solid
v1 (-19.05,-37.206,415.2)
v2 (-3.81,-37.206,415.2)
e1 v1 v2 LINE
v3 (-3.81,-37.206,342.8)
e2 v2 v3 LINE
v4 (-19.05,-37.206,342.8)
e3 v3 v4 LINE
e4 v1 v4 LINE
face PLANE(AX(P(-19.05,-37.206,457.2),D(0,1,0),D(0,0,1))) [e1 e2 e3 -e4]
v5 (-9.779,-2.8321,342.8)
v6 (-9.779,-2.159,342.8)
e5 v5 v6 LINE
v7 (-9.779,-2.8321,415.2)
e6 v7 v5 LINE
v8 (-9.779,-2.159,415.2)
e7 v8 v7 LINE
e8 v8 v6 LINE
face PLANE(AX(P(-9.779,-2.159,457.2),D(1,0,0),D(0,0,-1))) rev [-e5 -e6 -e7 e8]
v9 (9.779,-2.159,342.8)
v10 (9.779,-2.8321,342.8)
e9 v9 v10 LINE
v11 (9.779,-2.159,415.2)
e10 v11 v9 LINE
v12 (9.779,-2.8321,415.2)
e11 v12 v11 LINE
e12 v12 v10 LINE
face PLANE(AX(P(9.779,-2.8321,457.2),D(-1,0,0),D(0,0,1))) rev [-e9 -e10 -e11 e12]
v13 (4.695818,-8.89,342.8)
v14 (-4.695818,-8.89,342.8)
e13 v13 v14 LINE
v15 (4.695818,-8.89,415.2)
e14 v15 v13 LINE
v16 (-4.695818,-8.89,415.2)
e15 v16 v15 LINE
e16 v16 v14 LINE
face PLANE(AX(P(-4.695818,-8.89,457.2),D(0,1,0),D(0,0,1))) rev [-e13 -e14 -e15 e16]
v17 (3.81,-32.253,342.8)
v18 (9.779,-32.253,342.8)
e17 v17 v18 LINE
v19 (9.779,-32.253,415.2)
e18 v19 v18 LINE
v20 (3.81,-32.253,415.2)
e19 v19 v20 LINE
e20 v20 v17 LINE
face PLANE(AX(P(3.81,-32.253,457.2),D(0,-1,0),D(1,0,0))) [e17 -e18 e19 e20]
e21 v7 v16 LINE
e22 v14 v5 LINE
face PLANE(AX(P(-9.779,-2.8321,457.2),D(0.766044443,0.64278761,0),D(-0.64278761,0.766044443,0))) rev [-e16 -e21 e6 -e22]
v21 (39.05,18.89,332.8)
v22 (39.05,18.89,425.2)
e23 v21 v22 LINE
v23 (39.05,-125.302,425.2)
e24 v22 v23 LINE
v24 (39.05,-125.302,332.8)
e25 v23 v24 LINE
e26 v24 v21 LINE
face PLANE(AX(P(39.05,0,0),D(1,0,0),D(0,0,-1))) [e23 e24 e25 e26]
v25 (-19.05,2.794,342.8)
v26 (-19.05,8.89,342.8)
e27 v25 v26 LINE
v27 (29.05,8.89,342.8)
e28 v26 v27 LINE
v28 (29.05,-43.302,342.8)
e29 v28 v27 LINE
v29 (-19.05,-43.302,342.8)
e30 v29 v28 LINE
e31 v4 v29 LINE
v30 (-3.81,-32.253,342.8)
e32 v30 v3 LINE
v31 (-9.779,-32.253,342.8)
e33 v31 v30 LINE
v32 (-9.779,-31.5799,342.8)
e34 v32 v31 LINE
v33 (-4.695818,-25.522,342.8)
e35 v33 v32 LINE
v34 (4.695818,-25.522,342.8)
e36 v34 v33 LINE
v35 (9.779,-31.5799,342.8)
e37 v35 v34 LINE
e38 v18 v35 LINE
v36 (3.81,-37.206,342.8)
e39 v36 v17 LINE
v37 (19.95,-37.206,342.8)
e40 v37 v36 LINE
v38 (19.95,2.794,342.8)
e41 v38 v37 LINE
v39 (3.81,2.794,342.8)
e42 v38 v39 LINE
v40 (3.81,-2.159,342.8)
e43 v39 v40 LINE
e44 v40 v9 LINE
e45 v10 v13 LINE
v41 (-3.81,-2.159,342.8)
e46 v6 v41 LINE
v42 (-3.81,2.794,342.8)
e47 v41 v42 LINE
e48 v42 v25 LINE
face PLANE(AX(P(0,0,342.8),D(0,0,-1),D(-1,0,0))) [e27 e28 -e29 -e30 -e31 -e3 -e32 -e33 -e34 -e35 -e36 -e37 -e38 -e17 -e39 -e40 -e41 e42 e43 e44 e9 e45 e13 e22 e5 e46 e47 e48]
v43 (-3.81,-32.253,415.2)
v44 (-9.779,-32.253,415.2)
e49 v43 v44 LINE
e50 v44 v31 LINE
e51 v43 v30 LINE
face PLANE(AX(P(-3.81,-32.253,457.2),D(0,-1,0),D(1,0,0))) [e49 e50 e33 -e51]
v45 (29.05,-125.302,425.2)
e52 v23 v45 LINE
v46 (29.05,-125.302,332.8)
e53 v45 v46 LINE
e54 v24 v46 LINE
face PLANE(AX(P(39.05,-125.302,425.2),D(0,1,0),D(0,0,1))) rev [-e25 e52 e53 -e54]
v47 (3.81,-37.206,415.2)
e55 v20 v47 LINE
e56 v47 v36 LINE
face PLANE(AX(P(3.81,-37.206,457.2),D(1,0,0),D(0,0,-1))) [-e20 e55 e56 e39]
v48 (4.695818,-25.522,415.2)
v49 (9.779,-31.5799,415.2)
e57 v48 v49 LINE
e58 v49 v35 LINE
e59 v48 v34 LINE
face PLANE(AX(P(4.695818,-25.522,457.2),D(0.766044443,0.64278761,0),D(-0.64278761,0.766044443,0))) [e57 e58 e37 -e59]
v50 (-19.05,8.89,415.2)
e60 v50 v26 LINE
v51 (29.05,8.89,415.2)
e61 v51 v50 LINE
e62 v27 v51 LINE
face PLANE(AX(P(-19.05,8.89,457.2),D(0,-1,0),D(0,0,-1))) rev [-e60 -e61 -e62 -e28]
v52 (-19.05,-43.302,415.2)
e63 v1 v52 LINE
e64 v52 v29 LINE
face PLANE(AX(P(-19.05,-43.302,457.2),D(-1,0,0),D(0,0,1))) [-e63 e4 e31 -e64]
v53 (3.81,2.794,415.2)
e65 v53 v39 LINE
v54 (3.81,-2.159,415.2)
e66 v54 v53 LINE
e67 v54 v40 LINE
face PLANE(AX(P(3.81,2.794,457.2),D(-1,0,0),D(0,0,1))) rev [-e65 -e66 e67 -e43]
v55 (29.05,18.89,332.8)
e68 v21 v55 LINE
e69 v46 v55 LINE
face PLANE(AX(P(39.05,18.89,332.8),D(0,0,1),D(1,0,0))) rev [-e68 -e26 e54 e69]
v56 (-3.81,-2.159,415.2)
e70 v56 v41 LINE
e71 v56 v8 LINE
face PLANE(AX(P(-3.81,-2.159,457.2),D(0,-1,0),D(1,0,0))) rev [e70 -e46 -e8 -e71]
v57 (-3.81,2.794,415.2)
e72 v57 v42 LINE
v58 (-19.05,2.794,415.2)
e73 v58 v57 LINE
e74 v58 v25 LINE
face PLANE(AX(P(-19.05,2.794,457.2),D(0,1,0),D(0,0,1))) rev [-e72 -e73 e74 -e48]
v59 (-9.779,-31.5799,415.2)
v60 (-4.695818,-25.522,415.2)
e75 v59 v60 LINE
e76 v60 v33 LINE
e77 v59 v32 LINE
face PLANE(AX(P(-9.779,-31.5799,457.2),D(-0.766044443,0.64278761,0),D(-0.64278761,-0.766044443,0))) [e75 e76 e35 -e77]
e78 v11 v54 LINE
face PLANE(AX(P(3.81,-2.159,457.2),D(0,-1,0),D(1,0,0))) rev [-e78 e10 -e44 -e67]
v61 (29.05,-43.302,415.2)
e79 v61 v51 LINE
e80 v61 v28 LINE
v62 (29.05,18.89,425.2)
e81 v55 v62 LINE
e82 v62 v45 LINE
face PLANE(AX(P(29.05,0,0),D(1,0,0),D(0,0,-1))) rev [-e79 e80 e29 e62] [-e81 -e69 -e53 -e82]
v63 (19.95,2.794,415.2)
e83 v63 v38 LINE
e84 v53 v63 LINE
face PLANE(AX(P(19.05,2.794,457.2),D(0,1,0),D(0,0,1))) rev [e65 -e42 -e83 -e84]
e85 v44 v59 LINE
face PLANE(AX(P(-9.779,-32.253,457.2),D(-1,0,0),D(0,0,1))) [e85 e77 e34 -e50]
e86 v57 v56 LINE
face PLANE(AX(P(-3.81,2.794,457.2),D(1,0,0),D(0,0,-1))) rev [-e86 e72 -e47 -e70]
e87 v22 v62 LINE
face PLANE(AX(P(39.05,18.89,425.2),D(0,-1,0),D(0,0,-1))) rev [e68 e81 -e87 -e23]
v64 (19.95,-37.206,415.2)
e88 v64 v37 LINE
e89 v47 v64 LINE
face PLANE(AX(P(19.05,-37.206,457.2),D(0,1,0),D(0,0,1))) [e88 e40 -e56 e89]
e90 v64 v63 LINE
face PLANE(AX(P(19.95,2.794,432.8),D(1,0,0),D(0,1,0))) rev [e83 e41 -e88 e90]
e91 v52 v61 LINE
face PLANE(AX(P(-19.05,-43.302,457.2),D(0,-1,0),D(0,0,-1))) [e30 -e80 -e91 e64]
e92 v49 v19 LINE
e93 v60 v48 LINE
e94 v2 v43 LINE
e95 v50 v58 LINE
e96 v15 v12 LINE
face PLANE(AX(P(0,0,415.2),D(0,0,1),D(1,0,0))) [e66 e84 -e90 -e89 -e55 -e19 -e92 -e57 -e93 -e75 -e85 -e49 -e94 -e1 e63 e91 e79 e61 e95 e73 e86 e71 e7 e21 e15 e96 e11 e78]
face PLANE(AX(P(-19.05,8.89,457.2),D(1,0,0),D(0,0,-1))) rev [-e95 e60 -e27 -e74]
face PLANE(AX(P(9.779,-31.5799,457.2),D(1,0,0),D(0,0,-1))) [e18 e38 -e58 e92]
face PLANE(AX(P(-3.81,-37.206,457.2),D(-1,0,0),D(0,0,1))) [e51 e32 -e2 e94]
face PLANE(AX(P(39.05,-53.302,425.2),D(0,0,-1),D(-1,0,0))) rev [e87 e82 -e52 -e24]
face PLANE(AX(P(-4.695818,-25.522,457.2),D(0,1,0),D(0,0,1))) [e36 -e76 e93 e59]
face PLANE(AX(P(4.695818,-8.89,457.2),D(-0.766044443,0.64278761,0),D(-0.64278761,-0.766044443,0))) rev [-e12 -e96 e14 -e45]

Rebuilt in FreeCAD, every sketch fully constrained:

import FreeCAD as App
import Part
import Sketcher
from FreeCAD import Vector
Q = App.Units.Quantity

doc = App.newDocument("Part")
body = doc.addObject("PartDesign::Body", "Body")

# Sketch on XY plane
sketch1 = body.newObject("Sketcher::SketchObject", "Sketch")
sketch1.AttachmentSupport = (doc.getObject("XY_Plane"), [""])
sketch1.MapMode = "FlatFace"
sketch1.addGeometry([
    Part.LineSegment(Vector(19.1, 8.9, 0), Vector(-19.1, 8.9, 0)),  # 0
    Part.LineSegment(Vector(-19.1, 8.9, 0), Vector(-19.1, 2.8, 0)),  # 1
    Part.LineSegment(Vector(-19.1, 2.8, 0), Vector(-3.8, 2.8, 0)),  # 2
    Part.LineSegment(Vector(-3.8, 2.8, 0), Vector(-3.8, -2.2, 0)),  # 3
    Part.LineSegment(Vector(-3.8, -2.2, 0), Vector(-9.8, -2.2, 0)),  # 4
    Part.LineSegment(Vector(-9.8, -2.2, 0), Vector(-9.8, -2.8, 0)),  # 5
    Part.LineSegment(Vector(-9.8, -2.8, 0), Vector(-4.7, -8.9, 0)),  # 6
    Part.LineSegment(Vector(-4.7, -8.9, 0), Vector(4.7, -8.9, 0)),  # 7
    Part.LineSegment(Vector(4.7, -8.9, 0), Vector(9.8, -2.8, 0)),  # 8
    Part.LineSegment(Vector(9.8, -2.8, 0), Vector(9.8, -2.2, 0)),  # 9
    Part.LineSegment(Vector(9.8, -2.2, 0), Vector(3.8, -2.2, 0)),  # 10
    Part.LineSegment(Vector(3.8, -2.2, 0), Vector(3.8, 2.8, 0)),  # 11
    Part.LineSegment(Vector(3.8, 2.8, 0), Vector(19.1, 2.8, 0)),  # 12
    Part.LineSegment(Vector(19.1, 2.8, 0), Vector(19.1, 8.9, 0)),  # 13
], False)
sketch1.addConstraint([
    Sketcher.Constraint("Coincident", 0, 2, 1, 1),
    Sketcher.Constraint("Coincident", 1, 2, 2, 1),
    Sketcher.Constraint("Coincident", 2, 2, 3, 1),
    Sketcher.Constraint("Coincident", 3, 2, 4, 1),
    Sketcher.Constraint("Coincident", 4, 2, 5, 1),
    Sketcher.Constraint("Coincident", 5, 2, 6, 1),
    Sketcher.Constraint("Coincident", 6, 2, 7, 1),
    Sketcher.Constraint("Coincident", 7, 2, 8, 1),
    Sketcher.Constraint("Coincident", 8, 2, 9, 1),
    Sketcher.Constraint("Coincident", 9, 2, 10, 1),
    Sketcher.Constraint("Coincident", 10, 2, 11, 1),
    Sketcher.Constraint("Coincident", 11, 2, 12, 1),
    Sketcher.Constraint("Coincident", 12, 2, 13, 1),
    Sketcher.Constraint("Coincident", 13, 2, 0, 1),
    Sketcher.Constraint("Horizontal", 0),
    Sketcher.Constraint("Vertical", 1),
    Sketcher.Constraint("Horizontal", 2),
    Sketcher.Constraint("Vertical", 3),
    Sketcher.Constraint("Horizontal", 4),
    Sketcher.Constraint("Vertical", 5),
    Sketcher.Constraint("Horizontal", 7),
    Sketcher.Constraint("Vertical", 9),
    Sketcher.Constraint("Horizontal", 10),
    Sketcher.Constraint("Vertical", 11),
    Sketcher.Constraint("Horizontal", 12),
    Sketcher.Constraint("Vertical", 13),
    Sketcher.Constraint("Symmetric", 5, 2, 8, 2, -2),
    Sketcher.Constraint("Symmetric", 3, 2, 10, 2, -2),
    Sketcher.Constraint("Symmetric", 1, 2, 12, 2, -2),
    Sketcher.Constraint("Equal", 6, 8),
    Sketcher.Constraint("Angle", 6, Q("-50 deg")),
    Sketcher.Constraint("DistanceX", 0, 2, 0, 1, Q("38.1 mm")),
    Sketcher.Constraint("DistanceX", 2, 1, 2, 2, Q("15.24 mm")),
    Sketcher.Constraint("DistanceX", 4, 2, 4, 1, Q("5.969 mm")),
    Sketcher.Constraint("DistanceY", 1, 2, 1, 1, Q("6.096 mm")),
    Sketcher.Constraint("DistanceY", 3, 2, 3, 1, Q("4.953 mm")),
    Sketcher.Constraint("DistanceY", -1, 1, 0, 2, Q("8.89 mm")),
    Sketcher.Constraint("DistanceY", 6, 2, -1, 1, Q("8.89 mm")),
    Sketcher.Constraint("DistanceY", 5, 2, 5, 1, Q("0.6731 mm")),
])
pad1 = body.newObject("PartDesign::Pad", "Pad")
pad1.Profile = sketch1
pad1.Length = 914.4
pad1.Midplane = True

# Sketch on XY plane
sketch2 = body.newObject("Sketcher::SketchObject", "Sketch001")
sketch2.AttachmentSupport = (doc.getObject("XY_Plane"), [""])
sketch2.MapMode = "FlatFace"
sketch2.AttachmentOffset = App.Placement(Vector(0, 0, -457.2), App.Rotation())
sketch2.addGeometry([
    Part.LineSegment(Vector(21, 12, 0), Vector(21, -12, 0)),
    Part.LineSegment(Vector(21, -12, 0), Vector(-21, -12, 0)),
    Part.LineSegment(Vector(-21, -12, 0), Vector(-21, 12, 0)),
    Part.LineSegment(Vector(-21, 12, 0), Vector(21, 12, 0)),
], False)
sketch2.addConstraint([
    Sketcher.Constraint("Coincident", 0, 2, 1, 1),
    Sketcher.Constraint("Coincident", 1, 2, 2, 1),
    Sketcher.Constraint("Coincident", 2, 2, 3, 1),
    Sketcher.Constraint("Coincident", 3, 2, 0, 1),
    Sketcher.Constraint("Vertical", 0),
    Sketcher.Constraint("Horizontal", 1),
    Sketcher.Constraint("Vertical", 2),
    Sketcher.Constraint("Horizontal", 3),
    Sketcher.Constraint("Symmetric", 0, 2, 2, 2, -1, 1),
    Sketcher.Constraint("DistanceX", 1, 2, 1, 1, Q("42.050957 mm")),
    Sketcher.Constraint("DistanceY", 0, 2, 0, 1, Q("23.599287 mm")),
])
pocket1 = body.newObject("PartDesign::Pocket", "Pocket")
pocket1.Profile = sketch2
pocket1.Length = 800
pocket1.Reversed = True

# Sketch on YZ plane
sketch3 = body.newObject("Sketcher::SketchObject", "Sketch002")
sketch3.AttachmentSupport = (doc.getObject("YZ_Plane"), [""])
sketch3.MapMode = "FlatFace"
sketch3.AttachmentOffset = App.Placement(Vector(0, 0, 19.05), App.Rotation())
sketch3.addGeometry([
    Part.LineSegment(Vector(9, 457, 0), Vector(-48, 457, 0)),
    Part.LineSegment(Vector(-48, 457, 0), Vector(-48, 343, 0)),
    Part.LineSegment(Vector(-48, 343, 0), Vector(9, 343, 0)),
    Part.LineSegment(Vector(9, 343, 0), Vector(9, 457, 0)),
], False)
sketch3.addConstraint([
    Sketcher.Constraint("Coincident", 0, 2, 1, 1),
    Sketcher.Constraint("Coincident", 1, 2, 2, 1),
    Sketcher.Constraint("Coincident", 2, 2, 3, 1),
    Sketcher.Constraint("Coincident", 3, 2, 0, 1),
    Sketcher.Constraint("Horizontal", 0),
    Sketcher.Constraint("Vertical", 1),
    Sketcher.Constraint("Horizontal", 2),
    Sketcher.Constraint("Vertical", 3),
    Sketcher.Constraint("DistanceY", 1, 2, 1, 1, Q("114.4 mm")),
    Sketcher.Constraint("DistanceY", -1, 1, 0, 2, Q("457.2 mm")),
    Sketcher.Constraint("DistanceX", -1, 1, 2, 2, Q("8.89 mm")),
    Sketcher.Constraint("DistanceX", 0, 2, 0, 1, Q("56.436671 mm")),
])
pad2 = body.newObject("PartDesign::Pad", "Pad001")
pad2.Profile = sketch3
pad2.Length = 10
doc.recompute()

datumplane = body.newObject("PartDesign::Plane", "DatumPlane")
datumplane.AttachmentSupport = (doc.getObject("XZ_Plane"), [""])
datumplane.MapMode = "FlatFace"
datumplane.AttachmentOffset = App.Placement(Vector(0, 0, 17.206), App.Rotation())
mirrored = body.newObject("PartDesign::Mirrored", "Mirrored")
mirrored.Originals = [pad1, pocket1]
mirrored.MirrorPlane = (datumplane, [""])
body.Tip = mirrored

# Sketch on YZ plane
sketch4 = body.newObject("Sketcher::SketchObject", "Sketch003")
sketch4.AttachmentSupport = (doc.getObject("YZ_Plane"), [""])
sketch4.MapMode = "FlatFace"
sketch4.AttachmentOffset = App.Placement(Vector(0, 0, 19.05), App.Rotation())
sketch4.addGeometry([
    Part.LineSegment(Vector(-43.3, 342.8, 0), Vector(-47.5, 342.8, 0)),
    Part.LineSegment(Vector(-47.5, 342.8, 0), Vector(-47.5, 457.2, 0)),
    Part.LineSegment(Vector(-47.5, 457.2, 0), Vector(-43.3, 457.2, 0)),
    Part.LineSegment(Vector(-43.3, 457.2, 0), Vector(-43.3, 342.8, 0)),
], False)
sketch4.addConstraint([
    Sketcher.Constraint("Coincident", 0, 2, 1, 1),
    Sketcher.Constraint("Coincident", 1, 2, 2, 1),
    Sketcher.Constraint("Coincident", 2, 2, 3, 1),
    Sketcher.Constraint("Coincident", 3, 2, 0, 1),
    Sketcher.Constraint("Horizontal", 0),
    Sketcher.Constraint("Vertical", 1),
    Sketcher.Constraint("Horizontal", 2),
    Sketcher.Constraint("Vertical", 3),
    Sketcher.Constraint("DistanceY", 1, 1, 1, 2, Q("114.4 mm")),
    Sketcher.Constraint("DistanceY", -1, 1, 0, 2, Q("342.8 mm")),
    Sketcher.Constraint("DistanceX", 2, 2, -1, 1, Q("43.302 mm")),
    Sketcher.Constraint("DistanceX", 0, 2, 0, 1, Q("4.244671 mm")),
])
pocket2 = body.newObject("PartDesign::Pocket", "Pocket001")
pocket2.Profile = sketch4
pocket2.Length = 10
pocket2.Reversed = True

# Sketch on XY plane
sketch5 = body.newObject("Sketcher::SketchObject", "Sketch004")
sketch5.AttachmentSupport = (doc.getObject("XY_Plane"), [""])
sketch5.MapMode = "FlatFace"
sketch5.AttachmentOffset = App.Placement(Vector(0, 0, 457.2), App.Rotation())
sketch5.addGeometry([
    Part.LineSegment(Vector(-19, 9, 0), Vector(-19, -43, 0)),
    Part.LineSegment(Vector(-19, -43, 0), Vector(29, -43, 0)),
    Part.LineSegment(Vector(29, -43, 0), Vector(29, 9, 0)),
    Part.LineSegment(Vector(29, 9, 0), Vector(-19, 9, 0)),
], False)
sketch5.addConstraint([
    Sketcher.Constraint("Coincident", 0, 2, 1, 1),
    Sketcher.Constraint("Coincident", 1, 2, 2, 1),
    Sketcher.Constraint("Coincident", 2, 2, 3, 1),
    Sketcher.Constraint("Coincident", 3, 2, 0, 1),
    Sketcher.Constraint("Vertical", 0),
    Sketcher.Constraint("Horizontal", 1),
    Sketcher.Constraint("Vertical", 2),
    Sketcher.Constraint("Horizontal", 3),
    Sketcher.Constraint("DistanceX", 1, 1, 1, 2, Q("48.1 mm")),
    Sketcher.Constraint("DistanceY", 0, 2, 0, 1, Q("52.192 mm")),
    Sketcher.Constraint("DistanceX", 0, 2, -1, 1, Q("19.05 mm")),
    Sketcher.Constraint("DistanceY", -1, 1, 2, 2, Q("8.89 mm")),
])
pocket3 = body.newObject("PartDesign::Pocket", "Pocket002")
pocket3.Profile = sketch5
pocket3.Length = 42

# Sketch on XY plane
sketch6 = body.newObject("Sketcher::SketchObject", "Sketch005")
sketch6.AttachmentSupport = (doc.getObject("XY_Plane"), [""])
sketch6.MapMode = "FlatFace"
sketch6.AttachmentOffset = App.Placement(Vector(0, 0, 342.8), App.Rotation())
sketch6.addGeometry([
    Part.LineSegment(Vector(19.9, 2.8, 0), Vector(19.9, -37.2, 0)),
    Part.LineSegment(Vector(19.9, -37.2, 0), Vector(19.1, -37.2, 0)),
    Part.LineSegment(Vector(19.1, -37.2, 0), Vector(19.1, 2.8, 0)),
    Part.LineSegment(Vector(19.1, 2.8, 0), Vector(19.9, 2.8, 0)),
], False)
sketch6.addConstraint([
    Sketcher.Constraint("Coincident", 0, 2, 1, 1),
    Sketcher.Constraint("Coincident", 1, 2, 2, 1),
    Sketcher.Constraint("Coincident", 2, 2, 3, 1),
    Sketcher.Constraint("Coincident", 3, 2, 0, 1),
    Sketcher.Constraint("Vertical", 0),
    Sketcher.Constraint("Horizontal", 1),
    Sketcher.Constraint("Vertical", 2),
    Sketcher.Constraint("Horizontal", 3),
    Sketcher.Constraint("DistanceY", 0, 2, 0, 1, Q("40 mm")),
    Sketcher.Constraint("DistanceX", 1, 2, 1, 1, Q("0.9 mm")),
    Sketcher.Constraint("DistanceX", -1, 1, 0, 2, Q("19.95 mm")),
    Sketcher.Constraint("DistanceY", 0, 2, -1, 1, Q("37.206 mm")),
])
pocket4 = body.newObject("PartDesign::Pocket", "Pocket003")
pocket4.Profile = sketch6
pocket4.Length = 90
pocket4.Reversed = True

# Sketch on YZ plane
sketch7 = body.newObject("Sketcher::SketchObject", "Sketch006")
sketch7.AttachmentSupport = (doc.getObject("YZ_Plane"), [""])
sketch7.MapMode = "FlatFace"
sketch7.AttachmentOffset = App.Placement(Vector(0, 0, 29.05), App.Rotation())
sketch7.addGeometry([
    Part.LineSegment(Vector(19, 333, 0), Vector(19, 425, 0)),
    Part.LineSegment(Vector(19, 425, 0), Vector(-125, 425, 0)),
    Part.LineSegment(Vector(-125, 425, 0), Vector(-125, 333, 0)),
    Part.LineSegment(Vector(-125, 333, 0), Vector(19, 333, 0)),
], False)
sketch7.addConstraint([
    Sketcher.Constraint("Coincident", 0, 2, 1, 1),
    Sketcher.Constraint("Coincident", 1, 2, 2, 1),
    Sketcher.Constraint("Coincident", 2, 2, 3, 1),
    Sketcher.Constraint("Coincident", 3, 2, 0, 1),
    Sketcher.Constraint("Vertical", 0),
    Sketcher.Constraint("Horizontal", 1),
    Sketcher.Constraint("Vertical", 2),
    Sketcher.Constraint("Horizontal", 3),
    Sketcher.Constraint("DistanceY", 0, 1, 0, 2, Q("92.4 mm")),
    Sketcher.Constraint("DistanceY", -1, 1, 0, 2, Q("425.2 mm")),
    Sketcher.Constraint("DistanceX", 1, 2, 1, 1, Q("144.192 mm")),
    Sketcher.Constraint("DistanceX", -1, 1, 0, 2, Q("18.89 mm")),
])
pad3 = body.newObject("PartDesign::Pad", "Pad002")
pad3.Profile = sketch7
pad3.Length = 10

doc.recompute()
